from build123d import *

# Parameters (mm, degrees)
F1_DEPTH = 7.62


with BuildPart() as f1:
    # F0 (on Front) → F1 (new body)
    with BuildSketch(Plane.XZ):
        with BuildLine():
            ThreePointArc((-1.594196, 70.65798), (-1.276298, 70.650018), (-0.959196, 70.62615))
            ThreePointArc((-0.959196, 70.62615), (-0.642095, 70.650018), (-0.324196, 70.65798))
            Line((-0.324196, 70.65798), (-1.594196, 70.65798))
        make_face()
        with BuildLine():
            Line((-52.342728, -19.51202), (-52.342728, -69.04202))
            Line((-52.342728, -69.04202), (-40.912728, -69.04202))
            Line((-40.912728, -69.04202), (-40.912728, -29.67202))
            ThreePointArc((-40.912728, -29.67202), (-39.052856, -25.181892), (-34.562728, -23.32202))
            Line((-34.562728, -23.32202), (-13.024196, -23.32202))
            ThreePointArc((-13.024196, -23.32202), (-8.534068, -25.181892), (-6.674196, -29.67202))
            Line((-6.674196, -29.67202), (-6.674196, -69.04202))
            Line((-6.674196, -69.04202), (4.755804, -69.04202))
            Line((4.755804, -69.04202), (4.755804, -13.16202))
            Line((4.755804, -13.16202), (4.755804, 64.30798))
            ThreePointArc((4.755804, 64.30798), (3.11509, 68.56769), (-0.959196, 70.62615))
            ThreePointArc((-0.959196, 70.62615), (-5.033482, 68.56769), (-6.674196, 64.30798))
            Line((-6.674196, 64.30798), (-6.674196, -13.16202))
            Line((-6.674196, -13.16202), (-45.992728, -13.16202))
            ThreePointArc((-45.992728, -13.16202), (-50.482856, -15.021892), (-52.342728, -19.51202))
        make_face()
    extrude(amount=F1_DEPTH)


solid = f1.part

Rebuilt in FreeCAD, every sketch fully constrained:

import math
import FreeCAD as App
import Part
import Sketcher

V = App.Vector
Q = App.Units.Quantity

doc = App.newDocument("Part")
params = doc.addObject("Spreadsheet::Sheet", "Params")
for row, (alias, value) in enumerate([
    ("sketch1_radius", "0.25 in"),
    ("sketch1_width", "0.05 in"),
    ("sketch1_height", "1.95 in"),
    ("sketch1_height2", "1.55 in"),
    ("sketch1_height3", "5.25 in"),
    ("pad1_length", "0.3 in"),
], start=1):
    params.set(f"A{row}", alias)
    params.set(f"B{row}", "=" + value)
    params.setAlias(f"B{row}", alias)

body = doc.addObject("PartDesign::Body", "Body")
body.AllowCompound = True

# Sketch on XZ plane
sketch1 = doc.addObject("Sketcher::SketchObject", "Sketch")
body.addObject(sketch1)
sketch1.AttachmentSupport = (doc.XZ_Plane, [""])
sketch1.MapMode = "FlatFace"
sketch1.addGeometry([
    Part.ArcOfCircle(Part.Circle(V(-1.6, 64.3, 0), V(0, 0, 1), 6.3), math.radians(84.26), math.radians(90)),  # 0
    Part.ArcOfCircle(Part.Circle(V(-0.3, 64.3, 0), V(0, 0, 1), 6.3), math.radians(90), math.radians(95.74)),  # 1
    Part.LineSegment(V(-0.3, 70.7, 0), V(-1.6, 70.7, 0)),  # 2
    Part.LineSegment(V(-52.3, -19.5, 0), V(-52.3, -69, 0)),  # 3
    Part.LineSegment(V(-52.3, -69, 0), V(-40.9, -69, 0)),  # 4
    Part.LineSegment(V(-40.9, -69, 0), V(-40.9, -29.7, 0)),  # 5
    Part.ArcOfCircle(Part.Circle(V(-34.6, -29.7, 0), V(0, 0, 1), 6.4), math.radians(90), math.radians(180)),  # 6
    Part.LineSegment(V(-34.6, -23.3, 0), V(-13, -23.3, 0)),  # 7
    Part.ArcOfCircle(Part.Circle(V(-13, -29.7, 0), V(0, 0, 1), 6.4), math.radians(0), math.radians(90)),  # 8
    Part.LineSegment(V(-6.7, -29.7, 0), V(-6.7, -69, 0)),  # 9
    Part.LineSegment(V(-6.7, -69, 0), V(4.8, -69, 0)),  # 10
    Part.LineSegment(V(4.8, -69, 0), V(4.8, 64.3, 0)),  # 11
    Part.ArcOfCircle(Part.Circle(V(-1.6, 64.3, 0), V(0, 0, 1), 6.3), math.radians(0), math.radians(84)),  # 12
    Part.ArcOfCircle(Part.Circle(V(-0.3, 64.3, 0), V(0, 0, 1), 6.3), math.radians(96), math.radians(180)),  # 13
    Part.LineSegment(V(-6.7, 64.3, 0), V(-6.7, -13.2, 0)),  # 14
    Part.LineSegment(V(-6.7, -13.2, 0), V(-46, -13.2, 0)),  # 15
    Part.ArcOfCircle(Part.Circle(V(-46, -19.5, 0), V(0, 0, 1), 6.4), math.radians(90), math.radians(180)),  # 16
], False)
sketch1.addConstraint([
    Sketcher.Constraint("Coincident", 0, 1, 1, 2),
    Sketcher.Constraint("Coincident", 1, 1, 2, 1),
    Sketcher.Constraint("Coincident", 2, 2, 0, 2),
    Sketcher.Constraint("Coincident", 3, 2, 4, 1),
    Sketcher.Constraint("Coincident", 4, 2, 5, 1),
    Sketcher.Constraint("Tangent", 5, 2, 6, 2),
    Sketcher.Constraint("Tangent", 6, 1, 7, 1),
    Sketcher.Constraint("Tangent", 7, 2, 8, 2),
    Sketcher.Constraint("Tangent", 8, 1, 9, 1),
    Sketcher.Constraint("Coincident", 9, 2, 10, 1),
    Sketcher.Constraint("Coincident", 10, 2, 11, 1),
    Sketcher.Constraint("Tangent", 11, 2, 12, 1),
    Sketcher.Constraint("Coincident", 12, 2, 13, 1),
    Sketcher.Constraint("Tangent", 13, 2, 14, 1),
    Sketcher.Constraint("Coincident", 14, 2, 15, 1),
    Sketcher.Constraint("Tangent", 15, 2, 16, 1),
    Sketcher.Constraint("Tangent", 16, 2, 3, 1),
    Sketcher.Constraint("Horizontal", 2),
    Sketcher.Constraint("Vertical", 3),
    Sketcher.Constraint("Horizontal", 4),
    Sketcher.Constraint("Vertical", 5),
    Sketcher.Constraint("Horizontal", 7),
    Sketcher.Constraint("Vertical", 9),
    Sketcher.Constraint("Horizontal", 10),
    Sketcher.Constraint("Vertical", 11),
    Sketcher.Constraint("Vertical", 14),
    Sketcher.Constraint("Horizontal", 15),
    Sketcher.Constraint("Coincident", 12, 2, 0, 1),
    Sketcher.Constraint("Equal", 6, 8),
    Sketcher.Constraint("Equal", 8, 12),
    Sketcher.Constraint("Equal", 12, 13),
    Sketcher.Constraint("Equal", 13, 16),
    Sketcher.Constraint("Horizontal", 12, 3, 13, 3),
    Sketcher.Constraint("Horizontal", 4, 2, 9, 2),
    Sketcher.Constraint("Vertical", 13, 3, 1, 1),
    Sketcher.Constraint("Vertical", 12, 3, 2, 2),
    Sketcher.Constraint("Vertical", 9, 2, 13, 2),
    Sketcher.Constraint("Equal", 4, 10),
    Sketcher.Constraint("Radius", 6, Q("0.25 in")),
    Sketcher.Constraint("DistanceX", 2, 2, 2, 1, Q("0.05 in")),
    Sketcher.Constraint("DistanceY", 3, 2, 3, 1, Q("1.95 in")),
    Sketcher.Constraint("DistanceY", 5, 1, 5, 2, Q("1.55 in")),
    Sketcher.Constraint("DistanceY", 11, 1, 11, 2, Q("5.25 in")),
    Sketcher.Constraint("DistanceY", 13, 3, 1, 1, Q("0.25 in")),
    Sketcher.Constraint("Radius", 0, Q("6.349589 mm")),
    Sketcher.Constraint("Radius", 1, Q("6.349549 mm")),
    Sketcher.Constraint("DistanceX", 7, 1, 7, 2, Q("21.538532 mm")),
    Sketcher.Constraint("DistanceY", -1, 1, 0, 3, Q("64.308391 mm")),
    Sketcher.Constraint("DistanceX", 0, 3, -1, 1, Q("1.594178 mm")),
])
sketch1.setExpression("Constraints[38]", "Params.sketch1_radius")
sketch1.setExpression("Constraints[39]", "Params.sketch1_width")
sketch1.setExpression("Constraints[40]", "Params.sketch1_height")
sketch1.setExpression("Constraints[41]", "Params.sketch1_height2")
sketch1.setExpression("Constraints[42]", "Params.sketch1_height3")
pad1 = doc.addObject("PartDesign::Pad", "Pad")
body.addObject(pad1)
pad1.Profile = sketch1
pad1.setExpression("Length", "Params.pad1_length")

doc.recompute()
